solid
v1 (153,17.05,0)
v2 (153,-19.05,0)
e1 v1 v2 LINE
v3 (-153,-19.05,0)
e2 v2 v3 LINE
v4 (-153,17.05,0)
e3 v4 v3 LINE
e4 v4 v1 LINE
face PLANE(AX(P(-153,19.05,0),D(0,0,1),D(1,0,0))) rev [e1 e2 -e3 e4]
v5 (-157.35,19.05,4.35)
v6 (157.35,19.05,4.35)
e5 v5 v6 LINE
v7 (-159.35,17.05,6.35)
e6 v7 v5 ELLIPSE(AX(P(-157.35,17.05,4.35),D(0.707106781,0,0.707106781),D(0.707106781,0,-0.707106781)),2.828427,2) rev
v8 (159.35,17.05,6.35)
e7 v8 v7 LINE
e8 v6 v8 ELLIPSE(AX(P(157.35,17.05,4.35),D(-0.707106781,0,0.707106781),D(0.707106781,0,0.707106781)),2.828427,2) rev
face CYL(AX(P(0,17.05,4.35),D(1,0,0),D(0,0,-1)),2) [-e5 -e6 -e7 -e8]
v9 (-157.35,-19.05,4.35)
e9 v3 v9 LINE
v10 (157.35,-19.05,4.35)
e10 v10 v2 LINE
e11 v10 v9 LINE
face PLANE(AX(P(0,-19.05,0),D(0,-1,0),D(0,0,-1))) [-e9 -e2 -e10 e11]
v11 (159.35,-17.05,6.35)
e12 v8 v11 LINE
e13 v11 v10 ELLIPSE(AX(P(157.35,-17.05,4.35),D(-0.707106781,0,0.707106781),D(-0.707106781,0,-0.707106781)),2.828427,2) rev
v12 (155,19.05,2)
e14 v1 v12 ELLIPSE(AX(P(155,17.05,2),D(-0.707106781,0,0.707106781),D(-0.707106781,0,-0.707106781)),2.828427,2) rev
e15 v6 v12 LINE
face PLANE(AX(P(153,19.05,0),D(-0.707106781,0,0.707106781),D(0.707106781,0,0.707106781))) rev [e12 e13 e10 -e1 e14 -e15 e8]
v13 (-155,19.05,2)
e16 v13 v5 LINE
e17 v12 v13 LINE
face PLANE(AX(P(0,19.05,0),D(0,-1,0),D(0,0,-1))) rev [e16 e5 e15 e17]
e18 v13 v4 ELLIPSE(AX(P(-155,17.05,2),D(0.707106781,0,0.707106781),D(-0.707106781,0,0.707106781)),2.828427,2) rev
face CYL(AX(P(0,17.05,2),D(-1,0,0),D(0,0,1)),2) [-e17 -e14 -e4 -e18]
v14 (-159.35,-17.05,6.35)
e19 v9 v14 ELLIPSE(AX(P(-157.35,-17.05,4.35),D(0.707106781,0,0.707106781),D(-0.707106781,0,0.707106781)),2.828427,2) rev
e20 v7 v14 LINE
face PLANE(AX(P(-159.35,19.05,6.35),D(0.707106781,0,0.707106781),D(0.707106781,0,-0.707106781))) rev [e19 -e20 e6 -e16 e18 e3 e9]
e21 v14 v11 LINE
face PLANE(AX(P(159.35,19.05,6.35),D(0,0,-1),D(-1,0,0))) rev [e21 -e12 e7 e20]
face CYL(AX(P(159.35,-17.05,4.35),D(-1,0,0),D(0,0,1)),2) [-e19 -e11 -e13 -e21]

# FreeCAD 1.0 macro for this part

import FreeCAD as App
import Part
import Sketcher
Q = App.Units.Quantity


def edges_at(feature, points):
    """Names of the edges that pass closest to the given points."""
    edges = feature.Shape.Edges
    near = lambda p: min(range(len(edges)), key=lambda i: edges[i].distToShape(Part.Vertex(*p))[0])
    return sorted({f"Edge{near(p) + 1}" for p in points})

doc = App.newDocument("Part")
body = doc.addObject("PartDesign::Body", "Body")

sketch1 = body.newObject("Sketcher::SketchObject", "Sketch")
sketch1.AttachmentSupport = (doc.getObject("XZ_Plane"), [""])
sketch1.MapMode = "FlatFace"
sketch1.addGeometry(Part.LineSegment(App.Vector(153, 0, 0), App.Vector(-153, 0, 0)), False)
sketch1.addGeometry(Part.LineSegment(App.Vector(-153, 0, 0), App.Vector(-159.35, 6.35, 0)), False)
sketch1.addGeometry(Part.LineSegment(App.Vector(-159.35, 6.35, 0), App.Vector(159.35, 6.35, 0)), False)
sketch1.addGeometry(Part.LineSegment(App.Vector(159.35, 6.35, 0), App.Vector(153, 0, 0)), False)
sketch1.addConstraint(Sketcher.Constraint("Coincident", 0, 2, 1, 1))
sketch1.addConstraint(Sketcher.Constraint("Coincident", 1, 2, 2, 1))
sketch1.addConstraint(Sketcher.Constraint("Coincident", 2, 2, 3, 1))
sketch1.addConstraint(Sketcher.Constraint("Coincident", 3, 2, 0, 1))
sketch1.addConstraint(Sketcher.Constraint("Horizontal", 0))
sketch1.addConstraint(Sketcher.Constraint("Horizontal", 2))
sketch1.addConstraint(Sketcher.Constraint("Symmetric", 0, 2, 3, 2, -1, 1))
sketch1.addConstraint(Sketcher.Constraint("Perpendicular", 1, 3))
sketch1.addConstraint(Sketcher.Constraint("Equal", 1, 3))
sketch1.addConstraint(Sketcher.Constraint("DistanceX", 0, 2, 0, 1, Q("306 mm")))
sketch1.addConstraint(Sketcher.Constraint("DistanceX", 2, 1, 2, 2, Q("318.7 mm")))
pad1 = body.newObject("PartDesign::Pad", "Pad")
pad1.Profile = sketch1
pad1.Length = 38.1
pad1.Midplane = True
doc.recompute()

fillet = body.newObject("PartDesign::Fillet", "Fillet")
fillet.Base = (pad1, edges_at(pad1, [(0, 19.05, 0), (0, -19.05, 6.35), (0, 19.05, 6.35)]))
fillet.Radius = 2

doc.recompute()
